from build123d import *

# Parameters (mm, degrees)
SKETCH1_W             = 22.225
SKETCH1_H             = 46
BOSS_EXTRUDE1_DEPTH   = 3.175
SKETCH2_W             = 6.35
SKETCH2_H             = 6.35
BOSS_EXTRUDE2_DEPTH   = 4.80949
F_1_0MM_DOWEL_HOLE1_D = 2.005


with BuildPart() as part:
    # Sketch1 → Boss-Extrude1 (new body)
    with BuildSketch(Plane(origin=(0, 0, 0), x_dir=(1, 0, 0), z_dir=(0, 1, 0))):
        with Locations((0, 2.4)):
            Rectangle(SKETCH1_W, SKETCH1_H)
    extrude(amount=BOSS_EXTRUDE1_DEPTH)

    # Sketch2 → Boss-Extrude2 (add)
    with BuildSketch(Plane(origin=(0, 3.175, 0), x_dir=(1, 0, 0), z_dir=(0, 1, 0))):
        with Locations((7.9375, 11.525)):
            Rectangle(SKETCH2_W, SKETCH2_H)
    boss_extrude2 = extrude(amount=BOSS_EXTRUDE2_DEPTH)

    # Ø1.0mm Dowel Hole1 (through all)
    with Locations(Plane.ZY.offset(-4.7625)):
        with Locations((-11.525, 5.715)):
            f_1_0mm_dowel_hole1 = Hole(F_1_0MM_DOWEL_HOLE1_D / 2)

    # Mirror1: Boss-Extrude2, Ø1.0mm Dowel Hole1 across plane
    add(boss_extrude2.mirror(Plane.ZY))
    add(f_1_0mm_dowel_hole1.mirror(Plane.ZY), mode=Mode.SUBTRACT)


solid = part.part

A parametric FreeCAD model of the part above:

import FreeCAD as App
import Part
import Sketcher

V = App.Vector
Q = App.Units.Quantity

doc = App.newDocument("Part")
body = doc.addObject("PartDesign::Body", "Body")

# Sketch on XZ plane
sketch1 = doc.addObject("Sketcher::SketchObject", "Sketch")
body.addObject(sketch1)
sketch1.AttachmentSupport = (doc.XZ_Plane, [""])
sketch1.MapMode = "FlatFace"
sketch1.addGeometry([
    Part.LineSegment(V(-11, -25, 0), V(-11, 21, 0)),
    Part.LineSegment(V(-11, 21, 0), V(11, 21, 0)),
    Part.LineSegment(V(11, 21, 0), V(11, -25, 0)),
    Part.LineSegment(V(11, -25, 0), V(-11, -25, 0)),
], False)
sketch1.addConstraint([
    Sketcher.Constraint("Coincident", 0, 2, 1, 1),
    Sketcher.Constraint("Coincident", 1, 2, 2, 1),
    Sketcher.Constraint("Coincident", 2, 2, 3, 1),
    Sketcher.Constraint("Coincident", 3, 2, 0, 1),
    Sketcher.Constraint("Vertical", 0),
    Sketcher.Constraint("Horizontal", 1),
    Sketcher.Constraint("Vertical", 2),
    Sketcher.Constraint("Horizontal", 3),
    Sketcher.Constraint("DistanceY", 2, 2, -1, 1, Q("1 in")),
    Sketcher.Constraint("DistanceX", 1, 1, 1, 2, Q("0.875 in")),
    Sketcher.Constraint("DistanceX", 0, 2, -1, 1, Q("0.4375 in")),
    Sketcher.Constraint("DistanceY", 0, 1, 0, 2, Q("46 mm")),
])
pad1 = doc.addObject("PartDesign::Pad", "Pad")
body.addObject(pad1)
pad1.Profile = sketch1
pad1.Length = Q("0.125 in")
pad1.Reversed = True

# Sketch on XZ plane
sketch2 = doc.addObject("Sketcher::SketchObject", "Sketch001")
body.addObject(sketch2)
sketch2.AttachmentSupport = (doc.XZ_Plane, [""])
sketch2.MapMode = "FlatFace"
sketch2.AttachmentOffset = App.Placement(V(0, 0, -0.125 * 25.4), App.Rotation())
sketch2.addGeometry([
    Part.LineSegment(V(5, -15, 0), V(5, -8, 0)),
    Part.LineSegment(V(5, -8, 0), V(11, -8, 0)),
    Part.LineSegment(V(11, -8, 0), V(11, -15, 0)),
    Part.LineSegment(V(11, -15, 0), V(5, -15, 0)),
], False)
sketch2.addConstraint([
    Sketcher.Constraint("Coincident", 0, 2, 1, 1),
    Sketcher.Constraint("Coincident", 1, 2, 2, 1),
    Sketcher.Constraint("Coincident", 2, 2, 3, 1),
    Sketcher.Constraint("Coincident", 3, 2, 0, 1),
    Sketcher.Constraint("Vertical", 0),
    Sketcher.Constraint("Horizontal", 1),
    Sketcher.Constraint("Vertical", 2),
    Sketcher.Constraint("Horizontal", 3),
    Sketcher.Constraint("Equal", 3, 0),
    Sketcher.Constraint("DistanceX", 1, 1, 1, 2, Q("0.25 in")),
    Sketcher.Constraint("DistanceX", -1, 1, 0, 2, Q("0.1875 in")),
    Sketcher.Constraint("DistanceY", 0, 2, -1, 1, Q("8.35 mm")),
])
pad2 = doc.addObject("PartDesign::Pad", "Pad001")
body.addObject(pad2)
pad2.Profile = sketch2
pad2.Length = 4.80949
pad2.Reversed = True

# Sketch on YZ plane
sketch3 = doc.addObject("Sketcher::SketchObject", "Sketch002")
body.addObject(sketch3)
sketch3.AttachmentSupport = (doc.YZ_Plane, [""])
sketch3.MapMode = "FlatFace"
sketch3.AttachmentOffset = App.Placement(V(0, 0, 0.1875 * 25.4), App.Rotation())
sketch3.addGeometry(Part.Circle(V(5.7, -11.5, 0), V(0, 0, 1), 1), False)
sketch3.addConstraint([
    Sketcher.Constraint("Diameter", 0, Q("2.005 mm")),
    Sketcher.Constraint("DistanceX", -1, 1, 0, 3, Q("0.225 in")),
    Sketcher.Constraint("DistanceY", 0, 3, -1, 1, Q("11.525 mm")),
])
doc.recompute()
hole = doc.addObject("PartDesign::Hole", "Hole")
body.addObject(hole)
hole.Profile = sketch3
hole.ThreadType = "None"
hole.Diameter = 2.005
hole.DepthType = "ThroughAll"
hole.Reversed = True
doc.recompute()

mirrored = doc.addObject("PartDesign::Mirrored", "Mirrored")
body.addObject(mirrored)
mirrored.Originals = [pad2, hole]
mirrored.MirrorPlane = (doc.YZ_Plane, [""])
body.Tip = mirrored

doc.recompute()
